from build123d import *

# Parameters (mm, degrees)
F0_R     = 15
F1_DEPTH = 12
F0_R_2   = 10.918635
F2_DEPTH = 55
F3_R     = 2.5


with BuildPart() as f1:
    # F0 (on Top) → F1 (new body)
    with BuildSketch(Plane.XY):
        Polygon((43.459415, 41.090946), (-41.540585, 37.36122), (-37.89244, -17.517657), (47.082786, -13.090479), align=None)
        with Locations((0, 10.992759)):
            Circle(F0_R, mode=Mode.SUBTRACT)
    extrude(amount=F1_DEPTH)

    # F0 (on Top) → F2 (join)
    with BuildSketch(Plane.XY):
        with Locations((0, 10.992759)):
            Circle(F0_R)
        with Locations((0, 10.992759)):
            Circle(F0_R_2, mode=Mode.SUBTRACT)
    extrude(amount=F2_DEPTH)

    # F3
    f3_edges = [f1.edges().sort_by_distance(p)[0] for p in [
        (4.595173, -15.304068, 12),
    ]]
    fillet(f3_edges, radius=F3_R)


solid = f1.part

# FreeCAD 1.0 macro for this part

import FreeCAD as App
import Part
import Sketcher

V = App.Vector


def edges_at(feature, points):
    """Names of the edges that pass closest to the given points."""
    edges = feature.Shape.Edges
    near = lambda p: min(range(len(edges)), key=lambda i: edges[i].distToShape(Part.Vertex(*p))[0])
    return sorted({f"Edge{near(p) + 1}" for p in points})


def add_polygon(sketch, points):
    """Adds a closed chain of lines whose ends are joined by coincident constraints."""
    first, n = sketch.GeometryCount, len(points)
    for a, b in zip(points, points[1:] + points[:1]):
        sketch.addGeometry(Part.LineSegment(App.Vector(*a, 0), App.Vector(*b, 0)), False)
    for i in range(n):
        sketch.addConstraint(Sketcher.Constraint("Coincident", first + i, 2, first + (i + 1) % n, 1))

doc = App.newDocument("Part")
body = doc.addObject("PartDesign::Body", "Body")

# Sketch on XY plane
sketch1 = doc.addObject("Sketcher::SketchObject", "Sketch")
body.addObject(sketch1)
sketch1.AttachmentSupport = (doc.XY_Plane, [""])
sketch1.MapMode = "FlatFace"
add_polygon(sketch1, [(43, 41), (-42, 37), (-38, -18), (47, -13)])  # lines 0-3
sketch1.addGeometry(Part.Circle(V(0, 11, 0), V(0, 0, 1), 15), False)  # 4
sketch1.addConstraint(Sketcher.Constraint("PointOnObject", 4, 3, -2))
sketch1.addConstraint(Sketcher.Constraint("Diameter", 4, 30.0))
sketch1.addConstraint(Sketcher.Constraint("Distance", 1, 55.000001))
sketch1.addConstraint(Sketcher.Constraint("DistanceX", 0, 2, 3, 2, 85.0))
sketch1.addConstraint(Sketcher.Constraint("DistanceY", 2, 2, 0, 2, 50.451699))
sketch1.addConstraint(Sketcher.Constraint("Distance", 0, 85.081789))
sketch1.addConstraint(Sketcher.Constraint("DistanceY", -1, 1, 4, 3, 10.992759))
sketch1.addConstraint(Sketcher.Constraint("DistanceY", -1, 1, 0, 2, 37.36122))
sketch1.addConstraint(Sketcher.Constraint("DistanceX", 1, 2, -1, 1, 37.89244))
sketch1.addConstraint(Sketcher.Constraint("DistanceX", 0, 2, 2, 2, 88.623371))
sketch1.addConstraint(Sketcher.Constraint("Distance", 2, 85.090475))
pad1 = doc.addObject("PartDesign::Pad", "Pad")
body.addObject(pad1)
pad1.Profile = sketch1
pad1.Length = 12

# Sketch on XY plane
sketch2 = doc.addObject("Sketcher::SketchObject", "Sketch001")
body.addObject(sketch2)
sketch2.AttachmentSupport = (doc.XY_Plane, [""])
sketch2.MapMode = "FlatFace"
sketch2.addGeometry(Part.Circle(V(0, 11, 0), V(0, 0, 1), 15), False)
sketch2.addGeometry(Part.Circle(V(0, 11, 0), V(0, 0, 1), 11), False)
sketch2.addConstraint(Sketcher.Constraint("Coincident", 1, 3, 0, 3))
sketch2.addConstraint(Sketcher.Constraint("PointOnObject", 0, 3, -2))
sketch2.addConstraint(Sketcher.Constraint("Diameter", 0, 30.0))
sketch2.addConstraint(Sketcher.Constraint("Diameter", 1, 21.83727))
sketch2.addConstraint(Sketcher.Constraint("DistanceY", -1, 1, 0, 3, 10.992759))
pad2 = doc.addObject("PartDesign::Pad", "Pad001")
body.addObject(pad2)
pad2.Profile = sketch2
pad2.Length = 55
doc.recompute()

fillet = doc.addObject("PartDesign::Fillet", "Fillet")
body.addObject(fillet)
fillet.Base = (pad2, edges_at(pad2, [(4.595, -15.304, 12)]))
fillet.Radius = 2.5

doc.recompute()
